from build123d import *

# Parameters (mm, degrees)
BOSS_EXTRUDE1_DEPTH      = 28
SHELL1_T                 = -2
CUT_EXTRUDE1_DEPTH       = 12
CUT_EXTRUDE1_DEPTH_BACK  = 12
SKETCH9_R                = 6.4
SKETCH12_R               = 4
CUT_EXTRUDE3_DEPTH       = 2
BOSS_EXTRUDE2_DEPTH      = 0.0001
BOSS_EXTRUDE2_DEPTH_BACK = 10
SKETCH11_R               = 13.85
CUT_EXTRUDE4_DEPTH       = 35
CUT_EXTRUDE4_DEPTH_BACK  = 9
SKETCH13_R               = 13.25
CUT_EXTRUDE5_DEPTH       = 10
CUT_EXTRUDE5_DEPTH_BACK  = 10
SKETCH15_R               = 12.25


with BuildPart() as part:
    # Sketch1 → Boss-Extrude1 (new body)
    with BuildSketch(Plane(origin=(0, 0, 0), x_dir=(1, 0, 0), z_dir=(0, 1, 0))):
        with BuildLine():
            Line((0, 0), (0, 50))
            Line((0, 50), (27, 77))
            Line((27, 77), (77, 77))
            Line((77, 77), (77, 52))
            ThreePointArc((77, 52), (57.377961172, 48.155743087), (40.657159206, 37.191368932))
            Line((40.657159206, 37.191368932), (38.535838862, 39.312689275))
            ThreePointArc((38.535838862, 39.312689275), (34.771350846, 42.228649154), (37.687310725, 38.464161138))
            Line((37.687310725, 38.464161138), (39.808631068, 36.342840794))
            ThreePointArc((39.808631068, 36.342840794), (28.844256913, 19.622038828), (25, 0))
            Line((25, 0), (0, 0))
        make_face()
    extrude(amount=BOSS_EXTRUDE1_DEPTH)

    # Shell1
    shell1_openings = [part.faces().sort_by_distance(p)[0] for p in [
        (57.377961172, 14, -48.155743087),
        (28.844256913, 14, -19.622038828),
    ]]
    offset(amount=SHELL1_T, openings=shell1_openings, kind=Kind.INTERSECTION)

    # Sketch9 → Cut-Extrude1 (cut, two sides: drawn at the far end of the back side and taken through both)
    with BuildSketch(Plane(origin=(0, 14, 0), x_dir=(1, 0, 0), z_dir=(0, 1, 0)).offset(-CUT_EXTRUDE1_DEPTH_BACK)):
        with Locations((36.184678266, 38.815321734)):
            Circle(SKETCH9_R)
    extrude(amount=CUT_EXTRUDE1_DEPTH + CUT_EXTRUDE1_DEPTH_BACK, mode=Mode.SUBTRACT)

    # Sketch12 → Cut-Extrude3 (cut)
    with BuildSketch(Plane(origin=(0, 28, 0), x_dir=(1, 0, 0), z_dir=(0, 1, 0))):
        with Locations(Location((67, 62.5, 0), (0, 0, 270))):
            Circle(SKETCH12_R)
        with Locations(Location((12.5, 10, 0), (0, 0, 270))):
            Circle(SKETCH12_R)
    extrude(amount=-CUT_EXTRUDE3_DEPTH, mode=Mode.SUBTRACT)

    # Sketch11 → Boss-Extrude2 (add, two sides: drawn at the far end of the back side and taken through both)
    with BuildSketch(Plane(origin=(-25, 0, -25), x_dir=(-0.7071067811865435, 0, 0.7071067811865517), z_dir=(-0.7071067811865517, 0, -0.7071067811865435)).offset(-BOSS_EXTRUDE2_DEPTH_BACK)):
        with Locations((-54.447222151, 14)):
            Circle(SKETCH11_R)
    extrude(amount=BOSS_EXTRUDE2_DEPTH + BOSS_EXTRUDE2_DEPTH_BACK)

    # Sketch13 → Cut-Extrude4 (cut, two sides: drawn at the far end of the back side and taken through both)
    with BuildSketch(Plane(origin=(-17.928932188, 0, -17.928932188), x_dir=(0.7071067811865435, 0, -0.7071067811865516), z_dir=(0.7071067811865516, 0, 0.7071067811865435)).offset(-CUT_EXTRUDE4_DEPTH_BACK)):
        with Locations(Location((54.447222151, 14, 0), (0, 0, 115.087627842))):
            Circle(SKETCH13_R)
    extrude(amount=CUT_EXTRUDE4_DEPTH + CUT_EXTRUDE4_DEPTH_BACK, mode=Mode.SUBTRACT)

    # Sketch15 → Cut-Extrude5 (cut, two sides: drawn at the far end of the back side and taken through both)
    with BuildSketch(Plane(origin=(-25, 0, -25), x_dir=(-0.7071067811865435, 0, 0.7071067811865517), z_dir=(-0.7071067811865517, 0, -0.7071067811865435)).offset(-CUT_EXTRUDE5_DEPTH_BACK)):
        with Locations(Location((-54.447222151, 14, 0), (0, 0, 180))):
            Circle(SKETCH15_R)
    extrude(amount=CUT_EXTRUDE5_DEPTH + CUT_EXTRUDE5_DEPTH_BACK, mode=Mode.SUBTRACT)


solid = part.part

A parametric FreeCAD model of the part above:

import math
import FreeCAD as App
import Part
import Sketcher

V = App.Vector


def faces_at(feature, points):
    """Names of the faces that lie closest to the given points."""
    faces = feature.Shape.Faces
    near = lambda p: min(range(len(faces)), key=lambda i: faces[i].distToShape(Part.Vertex(*p))[0])
    return sorted({f"Face{near(p) + 1}" for p in points})

doc = App.newDocument("Part")
body = doc.addObject("PartDesign::Body", "Body")

sketch1 = body.newObject("Sketcher::SketchObject", "Sketch")
sketch1.AttachmentSupport = (doc.getObject("XZ_Plane"), [""])
sketch1.MapMode = "FlatFace"
sketch1.addGeometry(Part.LineSegment(V(0, -50, 0), V(0, 0, 0)), False)
sketch1.addGeometry(Part.LineSegment(V(0, 0, 0), V(25, 0, 0)), False)
sketch1.addGeometry(Part.ArcOfCircle(Part.Circle(V(77, 0, 0), V(0, 0, 1), 52), math.radians(180), math.radians(224)), False)
sketch1.addGeometry(Part.LineSegment(V(39.8, -36.3, 0), V(37.7, -38.5, 0)), False)
sketch1.addGeometry(Part.ArcOfCircle(Part.Circle(V(36.5, -40.5, 0), V(0, 0, 1), 2.4), math.radians(59), math.radians(391)), False)
sketch1.addGeometry(Part.LineSegment(V(38.5, -39.3, 0), V(40.7, -37.2, 0)), False)
sketch1.addGeometry(Part.ArcOfCircle(Part.Circle(V(77, 0, 0), V(0, 0, 1), 52), math.radians(-134), math.radians(-90)), False)
sketch1.addGeometry(Part.LineSegment(V(77, -52, 0), V(77, -77, 0)), False)
sketch1.addGeometry(Part.LineSegment(V(77, -77, 0), V(27, -77, 0)), False)
sketch1.addGeometry(Part.LineSegment(V(27, -77, 0), V(0, -50, 0)), False)
sketch1.addConstraint(Sketcher.Constraint("Coincident", 0, 2, 1, 1))
sketch1.addConstraint(Sketcher.Constraint("Coincident", 1, 2, 2, 1))
sketch1.addConstraint(Sketcher.Constraint("Coincident", 2, 2, 3, 1))
sketch1.addConstraint(Sketcher.Constraint("Coincident", 3, 2, 4, 1))
sketch1.addConstraint(Sketcher.Constraint("Coincident", 4, 2, 5, 1))
sketch1.addConstraint(Sketcher.Constraint("Coincident", 5, 2, 6, 1))
sketch1.addConstraint(Sketcher.Constraint("Coincident", 6, 2, 7, 1))
sketch1.addConstraint(Sketcher.Constraint("Coincident", 7, 2, 8, 1))
sketch1.addConstraint(Sketcher.Constraint("Coincident", 8, 2, 9, 1))
sketch1.addConstraint(Sketcher.Constraint("Coincident", 9, 2, 0, 1))
sketch1.addConstraint(Sketcher.Constraint("Vertical", 0))
sketch1.addConstraint(Sketcher.Constraint("Horizontal", 1))
sketch1.addConstraint(Sketcher.Constraint("Vertical", 7))
sketch1.addConstraint(Sketcher.Constraint("Horizontal", 8))
sketch1.addConstraint(Sketcher.Constraint("Coincident", 0, 2, -1, 1))
sketch1.addConstraint(Sketcher.Constraint("Coincident", 6, 3, 2, 3))
sketch1.addConstraint(Sketcher.Constraint("Equal", 2, 6))
sketch1.addConstraint(Sketcher.Constraint("PointOnObject", 2, 3, -1))
sketch1.addConstraint(Sketcher.Constraint("Parallel", 3, 5))
sketch1.addConstraint(Sketcher.Constraint("Perpendicular", 5, 9))
sketch1.addConstraint(Sketcher.Constraint("Vertical", 2, 3, 6, 2))
sketch1.addConstraint(Sketcher.Constraint("Equal", 8, 0))
sketch1.addConstraint(Sketcher.Constraint("Equal", 1, 7))
sketch1.addConstraint(Sketcher.Constraint("Equal", 3, 5))
sketch1.addConstraint(Sketcher.Constraint("Radius", 2, 52.0))
sketch1.addConstraint(Sketcher.Constraint("Radius", 4, 2.4))
sketch1.addConstraint(Sketcher.Constraint("DistanceX", 1, 1, 1, 2, 25.0))
sketch1.addConstraint(Sketcher.Constraint("DistanceX", 8, 2, 8, 1, 50.0))
sketch1.addConstraint(Sketcher.Constraint("Distance", 3, 3.0))
sketch1.addConstraint(Sketcher.Constraint("DistanceX", -1, 1, 2, 2, 39.808631))
sketch1.addConstraint(Sketcher.Constraint("DistanceX", -1, 1, 4, 2, 38.535839))
pad1 = body.newObject("PartDesign::Pad", "Pad")
pad1.Profile = sketch1
pad1.Length = 28
pad1.Reversed = True
doc.recompute()

thickness = body.newObject("PartDesign::Thickness", "Thickness")
thickness.Base = (pad1, faces_at(pad1, [(57.378, 14, -48.156), (28.844, 14, -19.622)]))
thickness.Value = 2
thickness.Reversed = True
thickness.Join = "Intersection"

sketch2 = body.newObject("Sketcher::SketchObject", "Sketch001")
sketch2.AttachmentSupport = (doc.getObject("XZ_Plane"), [""])
sketch2.MapMode = "FlatFace"
sketch2.AttachmentOffset = App.Placement(V(0, 0, -14), App.Rotation())
sketch2.addGeometry(Part.Circle(V(36, -39, 0), V(0, 0, 1), 6), False)
sketch2.addConstraint(Sketcher.Constraint("Diameter", 0, 12.8))
sketch2.addConstraint(Sketcher.Constraint("DistanceX", -1, 1, 0, 3, 36.184678))
sketch2.addConstraint(Sketcher.Constraint("DistanceY", 0, 3, -1, 1, 38.815322))
pocket1 = body.newObject("PartDesign::Pocket", "Pocket")
pocket1.Profile = sketch2
pocket1.Type = "TwoLengths"
pocket1.Length = 12
pocket1.Length2 = 12

sketch3 = body.newObject("Sketcher::SketchObject", "Sketch002")
sketch3.AttachmentSupport = (doc.getObject("XZ_Plane"), [""])
sketch3.MapMode = "FlatFace"
sketch3.AttachmentOffset = App.Placement(V(0, 0, -28), App.Rotation())
sketch3.addGeometry(Part.Circle(V(67, -62.5, 0), V(0, 0, 1), 4), False)
sketch3.addGeometry(Part.Circle(V(12.5, -10, 0), V(0, 0, 1), 4), False)
sketch3.addConstraint(Sketcher.Constraint("Equal", 0, 1))
sketch3.addConstraint(Sketcher.Constraint("Diameter", 0, 8.0))
sketch3.addConstraint(Sketcher.Constraint("DistanceX", -1, 1, 0, 3, 67.0))
sketch3.addConstraint(Sketcher.Constraint("DistanceY", 1, 3, -1, 1, 10.0))
sketch3.addConstraint(Sketcher.Constraint("DistanceY", 0, 3, -1, 1, 62.5))
sketch3.addConstraint(Sketcher.Constraint("DistanceX", -1, 1, 1, 3, 12.5))
pocket2 = body.newObject("PartDesign::Pocket", "Pocket001")
pocket2.Profile = sketch3
pocket2.Length = 2
pocket2.Reversed = True

sketch4 = body.newObject("Sketcher::SketchObject", "Sketch003")
sketch4.Placement = App.Placement(V(-25, 0, -25), App.Rotation(V(-0.707106781, 0, 0.707106781), V(0, 0.999999999, 0), V(-0.707106781, 0, -0.707106781), "ZXY"))
sketch4.addGeometry(Part.Circle(V(-54, 14, 0), V(0, 0, 1), 14), False)
sketch4.addConstraint(Sketcher.Constraint("Diameter", 0, 27.7))
sketch4.addConstraint(Sketcher.Constraint("DistanceY", -1, 1, 0, 3, 14.0))
sketch4.addConstraint(Sketcher.Constraint("DistanceX", 0, 3, -1, 1, 54.447222))
pad2 = body.newObject("PartDesign::Pad", "Pad001")
pad2.Profile = sketch4
pad2.Type = "TwoLengths"
pad2.Length = 0.0001
pad2.Length2 = 10

sketch5 = body.newObject("Sketcher::SketchObject", "Sketch004")
sketch5.Placement = App.Placement(V(-17.928932, 0, -17.928932), App.Rotation(V(0.707106781, 0, -0.707106781), V(0, 0.999999999, 0), V(0.707106781, 0, 0.707106781), "ZXY"))
sketch5.addGeometry(Part.Circle(V(54, 14, 0), V(0, 0, 1), 13), False)
sketch5.addConstraint(Sketcher.Constraint("Diameter", 0, 26.5))
sketch5.addConstraint(Sketcher.Constraint("DistanceY", -1, 1, 0, 3, 14.0))
sketch5.addConstraint(Sketcher.Constraint("DistanceX", -1, 1, 0, 3, 54.447222))
pocket3 = body.newObject("PartDesign::Pocket", "Pocket002")
pocket3.Profile = sketch5
pocket3.Type = "TwoLengths"
pocket3.Length = 35
pocket3.Length2 = 9
pocket3.Reversed = True

sketch6 = body.newObject("Sketcher::SketchObject", "Sketch005")
sketch6.Placement = App.Placement(V(-25, 0, -25), App.Rotation(V(-0.707106781, 0, 0.707106781), V(0, 0.999999999, 0), V(-0.707106781, 0, -0.707106781), "ZXY"))
sketch6.addGeometry(Part.Circle(V(-54, 14, 0), V(0, 0, 1), 12), False)
sketch6.addConstraint(Sketcher.Constraint("Diameter", 0, 24.5))
sketch6.addConstraint(Sketcher.Constraint("DistanceY", -1, 1, 0, 3, 14.0))
sketch6.addConstraint(Sketcher.Constraint("DistanceX", 0, 3, -1, 1, 54.447222))
pocket4 = body.newObject("PartDesign::Pocket", "Pocket003")
pocket4.Profile = sketch6
pocket4.Type = "ThroughAll"
pocket4.Midplane = True

doc.recompute()
